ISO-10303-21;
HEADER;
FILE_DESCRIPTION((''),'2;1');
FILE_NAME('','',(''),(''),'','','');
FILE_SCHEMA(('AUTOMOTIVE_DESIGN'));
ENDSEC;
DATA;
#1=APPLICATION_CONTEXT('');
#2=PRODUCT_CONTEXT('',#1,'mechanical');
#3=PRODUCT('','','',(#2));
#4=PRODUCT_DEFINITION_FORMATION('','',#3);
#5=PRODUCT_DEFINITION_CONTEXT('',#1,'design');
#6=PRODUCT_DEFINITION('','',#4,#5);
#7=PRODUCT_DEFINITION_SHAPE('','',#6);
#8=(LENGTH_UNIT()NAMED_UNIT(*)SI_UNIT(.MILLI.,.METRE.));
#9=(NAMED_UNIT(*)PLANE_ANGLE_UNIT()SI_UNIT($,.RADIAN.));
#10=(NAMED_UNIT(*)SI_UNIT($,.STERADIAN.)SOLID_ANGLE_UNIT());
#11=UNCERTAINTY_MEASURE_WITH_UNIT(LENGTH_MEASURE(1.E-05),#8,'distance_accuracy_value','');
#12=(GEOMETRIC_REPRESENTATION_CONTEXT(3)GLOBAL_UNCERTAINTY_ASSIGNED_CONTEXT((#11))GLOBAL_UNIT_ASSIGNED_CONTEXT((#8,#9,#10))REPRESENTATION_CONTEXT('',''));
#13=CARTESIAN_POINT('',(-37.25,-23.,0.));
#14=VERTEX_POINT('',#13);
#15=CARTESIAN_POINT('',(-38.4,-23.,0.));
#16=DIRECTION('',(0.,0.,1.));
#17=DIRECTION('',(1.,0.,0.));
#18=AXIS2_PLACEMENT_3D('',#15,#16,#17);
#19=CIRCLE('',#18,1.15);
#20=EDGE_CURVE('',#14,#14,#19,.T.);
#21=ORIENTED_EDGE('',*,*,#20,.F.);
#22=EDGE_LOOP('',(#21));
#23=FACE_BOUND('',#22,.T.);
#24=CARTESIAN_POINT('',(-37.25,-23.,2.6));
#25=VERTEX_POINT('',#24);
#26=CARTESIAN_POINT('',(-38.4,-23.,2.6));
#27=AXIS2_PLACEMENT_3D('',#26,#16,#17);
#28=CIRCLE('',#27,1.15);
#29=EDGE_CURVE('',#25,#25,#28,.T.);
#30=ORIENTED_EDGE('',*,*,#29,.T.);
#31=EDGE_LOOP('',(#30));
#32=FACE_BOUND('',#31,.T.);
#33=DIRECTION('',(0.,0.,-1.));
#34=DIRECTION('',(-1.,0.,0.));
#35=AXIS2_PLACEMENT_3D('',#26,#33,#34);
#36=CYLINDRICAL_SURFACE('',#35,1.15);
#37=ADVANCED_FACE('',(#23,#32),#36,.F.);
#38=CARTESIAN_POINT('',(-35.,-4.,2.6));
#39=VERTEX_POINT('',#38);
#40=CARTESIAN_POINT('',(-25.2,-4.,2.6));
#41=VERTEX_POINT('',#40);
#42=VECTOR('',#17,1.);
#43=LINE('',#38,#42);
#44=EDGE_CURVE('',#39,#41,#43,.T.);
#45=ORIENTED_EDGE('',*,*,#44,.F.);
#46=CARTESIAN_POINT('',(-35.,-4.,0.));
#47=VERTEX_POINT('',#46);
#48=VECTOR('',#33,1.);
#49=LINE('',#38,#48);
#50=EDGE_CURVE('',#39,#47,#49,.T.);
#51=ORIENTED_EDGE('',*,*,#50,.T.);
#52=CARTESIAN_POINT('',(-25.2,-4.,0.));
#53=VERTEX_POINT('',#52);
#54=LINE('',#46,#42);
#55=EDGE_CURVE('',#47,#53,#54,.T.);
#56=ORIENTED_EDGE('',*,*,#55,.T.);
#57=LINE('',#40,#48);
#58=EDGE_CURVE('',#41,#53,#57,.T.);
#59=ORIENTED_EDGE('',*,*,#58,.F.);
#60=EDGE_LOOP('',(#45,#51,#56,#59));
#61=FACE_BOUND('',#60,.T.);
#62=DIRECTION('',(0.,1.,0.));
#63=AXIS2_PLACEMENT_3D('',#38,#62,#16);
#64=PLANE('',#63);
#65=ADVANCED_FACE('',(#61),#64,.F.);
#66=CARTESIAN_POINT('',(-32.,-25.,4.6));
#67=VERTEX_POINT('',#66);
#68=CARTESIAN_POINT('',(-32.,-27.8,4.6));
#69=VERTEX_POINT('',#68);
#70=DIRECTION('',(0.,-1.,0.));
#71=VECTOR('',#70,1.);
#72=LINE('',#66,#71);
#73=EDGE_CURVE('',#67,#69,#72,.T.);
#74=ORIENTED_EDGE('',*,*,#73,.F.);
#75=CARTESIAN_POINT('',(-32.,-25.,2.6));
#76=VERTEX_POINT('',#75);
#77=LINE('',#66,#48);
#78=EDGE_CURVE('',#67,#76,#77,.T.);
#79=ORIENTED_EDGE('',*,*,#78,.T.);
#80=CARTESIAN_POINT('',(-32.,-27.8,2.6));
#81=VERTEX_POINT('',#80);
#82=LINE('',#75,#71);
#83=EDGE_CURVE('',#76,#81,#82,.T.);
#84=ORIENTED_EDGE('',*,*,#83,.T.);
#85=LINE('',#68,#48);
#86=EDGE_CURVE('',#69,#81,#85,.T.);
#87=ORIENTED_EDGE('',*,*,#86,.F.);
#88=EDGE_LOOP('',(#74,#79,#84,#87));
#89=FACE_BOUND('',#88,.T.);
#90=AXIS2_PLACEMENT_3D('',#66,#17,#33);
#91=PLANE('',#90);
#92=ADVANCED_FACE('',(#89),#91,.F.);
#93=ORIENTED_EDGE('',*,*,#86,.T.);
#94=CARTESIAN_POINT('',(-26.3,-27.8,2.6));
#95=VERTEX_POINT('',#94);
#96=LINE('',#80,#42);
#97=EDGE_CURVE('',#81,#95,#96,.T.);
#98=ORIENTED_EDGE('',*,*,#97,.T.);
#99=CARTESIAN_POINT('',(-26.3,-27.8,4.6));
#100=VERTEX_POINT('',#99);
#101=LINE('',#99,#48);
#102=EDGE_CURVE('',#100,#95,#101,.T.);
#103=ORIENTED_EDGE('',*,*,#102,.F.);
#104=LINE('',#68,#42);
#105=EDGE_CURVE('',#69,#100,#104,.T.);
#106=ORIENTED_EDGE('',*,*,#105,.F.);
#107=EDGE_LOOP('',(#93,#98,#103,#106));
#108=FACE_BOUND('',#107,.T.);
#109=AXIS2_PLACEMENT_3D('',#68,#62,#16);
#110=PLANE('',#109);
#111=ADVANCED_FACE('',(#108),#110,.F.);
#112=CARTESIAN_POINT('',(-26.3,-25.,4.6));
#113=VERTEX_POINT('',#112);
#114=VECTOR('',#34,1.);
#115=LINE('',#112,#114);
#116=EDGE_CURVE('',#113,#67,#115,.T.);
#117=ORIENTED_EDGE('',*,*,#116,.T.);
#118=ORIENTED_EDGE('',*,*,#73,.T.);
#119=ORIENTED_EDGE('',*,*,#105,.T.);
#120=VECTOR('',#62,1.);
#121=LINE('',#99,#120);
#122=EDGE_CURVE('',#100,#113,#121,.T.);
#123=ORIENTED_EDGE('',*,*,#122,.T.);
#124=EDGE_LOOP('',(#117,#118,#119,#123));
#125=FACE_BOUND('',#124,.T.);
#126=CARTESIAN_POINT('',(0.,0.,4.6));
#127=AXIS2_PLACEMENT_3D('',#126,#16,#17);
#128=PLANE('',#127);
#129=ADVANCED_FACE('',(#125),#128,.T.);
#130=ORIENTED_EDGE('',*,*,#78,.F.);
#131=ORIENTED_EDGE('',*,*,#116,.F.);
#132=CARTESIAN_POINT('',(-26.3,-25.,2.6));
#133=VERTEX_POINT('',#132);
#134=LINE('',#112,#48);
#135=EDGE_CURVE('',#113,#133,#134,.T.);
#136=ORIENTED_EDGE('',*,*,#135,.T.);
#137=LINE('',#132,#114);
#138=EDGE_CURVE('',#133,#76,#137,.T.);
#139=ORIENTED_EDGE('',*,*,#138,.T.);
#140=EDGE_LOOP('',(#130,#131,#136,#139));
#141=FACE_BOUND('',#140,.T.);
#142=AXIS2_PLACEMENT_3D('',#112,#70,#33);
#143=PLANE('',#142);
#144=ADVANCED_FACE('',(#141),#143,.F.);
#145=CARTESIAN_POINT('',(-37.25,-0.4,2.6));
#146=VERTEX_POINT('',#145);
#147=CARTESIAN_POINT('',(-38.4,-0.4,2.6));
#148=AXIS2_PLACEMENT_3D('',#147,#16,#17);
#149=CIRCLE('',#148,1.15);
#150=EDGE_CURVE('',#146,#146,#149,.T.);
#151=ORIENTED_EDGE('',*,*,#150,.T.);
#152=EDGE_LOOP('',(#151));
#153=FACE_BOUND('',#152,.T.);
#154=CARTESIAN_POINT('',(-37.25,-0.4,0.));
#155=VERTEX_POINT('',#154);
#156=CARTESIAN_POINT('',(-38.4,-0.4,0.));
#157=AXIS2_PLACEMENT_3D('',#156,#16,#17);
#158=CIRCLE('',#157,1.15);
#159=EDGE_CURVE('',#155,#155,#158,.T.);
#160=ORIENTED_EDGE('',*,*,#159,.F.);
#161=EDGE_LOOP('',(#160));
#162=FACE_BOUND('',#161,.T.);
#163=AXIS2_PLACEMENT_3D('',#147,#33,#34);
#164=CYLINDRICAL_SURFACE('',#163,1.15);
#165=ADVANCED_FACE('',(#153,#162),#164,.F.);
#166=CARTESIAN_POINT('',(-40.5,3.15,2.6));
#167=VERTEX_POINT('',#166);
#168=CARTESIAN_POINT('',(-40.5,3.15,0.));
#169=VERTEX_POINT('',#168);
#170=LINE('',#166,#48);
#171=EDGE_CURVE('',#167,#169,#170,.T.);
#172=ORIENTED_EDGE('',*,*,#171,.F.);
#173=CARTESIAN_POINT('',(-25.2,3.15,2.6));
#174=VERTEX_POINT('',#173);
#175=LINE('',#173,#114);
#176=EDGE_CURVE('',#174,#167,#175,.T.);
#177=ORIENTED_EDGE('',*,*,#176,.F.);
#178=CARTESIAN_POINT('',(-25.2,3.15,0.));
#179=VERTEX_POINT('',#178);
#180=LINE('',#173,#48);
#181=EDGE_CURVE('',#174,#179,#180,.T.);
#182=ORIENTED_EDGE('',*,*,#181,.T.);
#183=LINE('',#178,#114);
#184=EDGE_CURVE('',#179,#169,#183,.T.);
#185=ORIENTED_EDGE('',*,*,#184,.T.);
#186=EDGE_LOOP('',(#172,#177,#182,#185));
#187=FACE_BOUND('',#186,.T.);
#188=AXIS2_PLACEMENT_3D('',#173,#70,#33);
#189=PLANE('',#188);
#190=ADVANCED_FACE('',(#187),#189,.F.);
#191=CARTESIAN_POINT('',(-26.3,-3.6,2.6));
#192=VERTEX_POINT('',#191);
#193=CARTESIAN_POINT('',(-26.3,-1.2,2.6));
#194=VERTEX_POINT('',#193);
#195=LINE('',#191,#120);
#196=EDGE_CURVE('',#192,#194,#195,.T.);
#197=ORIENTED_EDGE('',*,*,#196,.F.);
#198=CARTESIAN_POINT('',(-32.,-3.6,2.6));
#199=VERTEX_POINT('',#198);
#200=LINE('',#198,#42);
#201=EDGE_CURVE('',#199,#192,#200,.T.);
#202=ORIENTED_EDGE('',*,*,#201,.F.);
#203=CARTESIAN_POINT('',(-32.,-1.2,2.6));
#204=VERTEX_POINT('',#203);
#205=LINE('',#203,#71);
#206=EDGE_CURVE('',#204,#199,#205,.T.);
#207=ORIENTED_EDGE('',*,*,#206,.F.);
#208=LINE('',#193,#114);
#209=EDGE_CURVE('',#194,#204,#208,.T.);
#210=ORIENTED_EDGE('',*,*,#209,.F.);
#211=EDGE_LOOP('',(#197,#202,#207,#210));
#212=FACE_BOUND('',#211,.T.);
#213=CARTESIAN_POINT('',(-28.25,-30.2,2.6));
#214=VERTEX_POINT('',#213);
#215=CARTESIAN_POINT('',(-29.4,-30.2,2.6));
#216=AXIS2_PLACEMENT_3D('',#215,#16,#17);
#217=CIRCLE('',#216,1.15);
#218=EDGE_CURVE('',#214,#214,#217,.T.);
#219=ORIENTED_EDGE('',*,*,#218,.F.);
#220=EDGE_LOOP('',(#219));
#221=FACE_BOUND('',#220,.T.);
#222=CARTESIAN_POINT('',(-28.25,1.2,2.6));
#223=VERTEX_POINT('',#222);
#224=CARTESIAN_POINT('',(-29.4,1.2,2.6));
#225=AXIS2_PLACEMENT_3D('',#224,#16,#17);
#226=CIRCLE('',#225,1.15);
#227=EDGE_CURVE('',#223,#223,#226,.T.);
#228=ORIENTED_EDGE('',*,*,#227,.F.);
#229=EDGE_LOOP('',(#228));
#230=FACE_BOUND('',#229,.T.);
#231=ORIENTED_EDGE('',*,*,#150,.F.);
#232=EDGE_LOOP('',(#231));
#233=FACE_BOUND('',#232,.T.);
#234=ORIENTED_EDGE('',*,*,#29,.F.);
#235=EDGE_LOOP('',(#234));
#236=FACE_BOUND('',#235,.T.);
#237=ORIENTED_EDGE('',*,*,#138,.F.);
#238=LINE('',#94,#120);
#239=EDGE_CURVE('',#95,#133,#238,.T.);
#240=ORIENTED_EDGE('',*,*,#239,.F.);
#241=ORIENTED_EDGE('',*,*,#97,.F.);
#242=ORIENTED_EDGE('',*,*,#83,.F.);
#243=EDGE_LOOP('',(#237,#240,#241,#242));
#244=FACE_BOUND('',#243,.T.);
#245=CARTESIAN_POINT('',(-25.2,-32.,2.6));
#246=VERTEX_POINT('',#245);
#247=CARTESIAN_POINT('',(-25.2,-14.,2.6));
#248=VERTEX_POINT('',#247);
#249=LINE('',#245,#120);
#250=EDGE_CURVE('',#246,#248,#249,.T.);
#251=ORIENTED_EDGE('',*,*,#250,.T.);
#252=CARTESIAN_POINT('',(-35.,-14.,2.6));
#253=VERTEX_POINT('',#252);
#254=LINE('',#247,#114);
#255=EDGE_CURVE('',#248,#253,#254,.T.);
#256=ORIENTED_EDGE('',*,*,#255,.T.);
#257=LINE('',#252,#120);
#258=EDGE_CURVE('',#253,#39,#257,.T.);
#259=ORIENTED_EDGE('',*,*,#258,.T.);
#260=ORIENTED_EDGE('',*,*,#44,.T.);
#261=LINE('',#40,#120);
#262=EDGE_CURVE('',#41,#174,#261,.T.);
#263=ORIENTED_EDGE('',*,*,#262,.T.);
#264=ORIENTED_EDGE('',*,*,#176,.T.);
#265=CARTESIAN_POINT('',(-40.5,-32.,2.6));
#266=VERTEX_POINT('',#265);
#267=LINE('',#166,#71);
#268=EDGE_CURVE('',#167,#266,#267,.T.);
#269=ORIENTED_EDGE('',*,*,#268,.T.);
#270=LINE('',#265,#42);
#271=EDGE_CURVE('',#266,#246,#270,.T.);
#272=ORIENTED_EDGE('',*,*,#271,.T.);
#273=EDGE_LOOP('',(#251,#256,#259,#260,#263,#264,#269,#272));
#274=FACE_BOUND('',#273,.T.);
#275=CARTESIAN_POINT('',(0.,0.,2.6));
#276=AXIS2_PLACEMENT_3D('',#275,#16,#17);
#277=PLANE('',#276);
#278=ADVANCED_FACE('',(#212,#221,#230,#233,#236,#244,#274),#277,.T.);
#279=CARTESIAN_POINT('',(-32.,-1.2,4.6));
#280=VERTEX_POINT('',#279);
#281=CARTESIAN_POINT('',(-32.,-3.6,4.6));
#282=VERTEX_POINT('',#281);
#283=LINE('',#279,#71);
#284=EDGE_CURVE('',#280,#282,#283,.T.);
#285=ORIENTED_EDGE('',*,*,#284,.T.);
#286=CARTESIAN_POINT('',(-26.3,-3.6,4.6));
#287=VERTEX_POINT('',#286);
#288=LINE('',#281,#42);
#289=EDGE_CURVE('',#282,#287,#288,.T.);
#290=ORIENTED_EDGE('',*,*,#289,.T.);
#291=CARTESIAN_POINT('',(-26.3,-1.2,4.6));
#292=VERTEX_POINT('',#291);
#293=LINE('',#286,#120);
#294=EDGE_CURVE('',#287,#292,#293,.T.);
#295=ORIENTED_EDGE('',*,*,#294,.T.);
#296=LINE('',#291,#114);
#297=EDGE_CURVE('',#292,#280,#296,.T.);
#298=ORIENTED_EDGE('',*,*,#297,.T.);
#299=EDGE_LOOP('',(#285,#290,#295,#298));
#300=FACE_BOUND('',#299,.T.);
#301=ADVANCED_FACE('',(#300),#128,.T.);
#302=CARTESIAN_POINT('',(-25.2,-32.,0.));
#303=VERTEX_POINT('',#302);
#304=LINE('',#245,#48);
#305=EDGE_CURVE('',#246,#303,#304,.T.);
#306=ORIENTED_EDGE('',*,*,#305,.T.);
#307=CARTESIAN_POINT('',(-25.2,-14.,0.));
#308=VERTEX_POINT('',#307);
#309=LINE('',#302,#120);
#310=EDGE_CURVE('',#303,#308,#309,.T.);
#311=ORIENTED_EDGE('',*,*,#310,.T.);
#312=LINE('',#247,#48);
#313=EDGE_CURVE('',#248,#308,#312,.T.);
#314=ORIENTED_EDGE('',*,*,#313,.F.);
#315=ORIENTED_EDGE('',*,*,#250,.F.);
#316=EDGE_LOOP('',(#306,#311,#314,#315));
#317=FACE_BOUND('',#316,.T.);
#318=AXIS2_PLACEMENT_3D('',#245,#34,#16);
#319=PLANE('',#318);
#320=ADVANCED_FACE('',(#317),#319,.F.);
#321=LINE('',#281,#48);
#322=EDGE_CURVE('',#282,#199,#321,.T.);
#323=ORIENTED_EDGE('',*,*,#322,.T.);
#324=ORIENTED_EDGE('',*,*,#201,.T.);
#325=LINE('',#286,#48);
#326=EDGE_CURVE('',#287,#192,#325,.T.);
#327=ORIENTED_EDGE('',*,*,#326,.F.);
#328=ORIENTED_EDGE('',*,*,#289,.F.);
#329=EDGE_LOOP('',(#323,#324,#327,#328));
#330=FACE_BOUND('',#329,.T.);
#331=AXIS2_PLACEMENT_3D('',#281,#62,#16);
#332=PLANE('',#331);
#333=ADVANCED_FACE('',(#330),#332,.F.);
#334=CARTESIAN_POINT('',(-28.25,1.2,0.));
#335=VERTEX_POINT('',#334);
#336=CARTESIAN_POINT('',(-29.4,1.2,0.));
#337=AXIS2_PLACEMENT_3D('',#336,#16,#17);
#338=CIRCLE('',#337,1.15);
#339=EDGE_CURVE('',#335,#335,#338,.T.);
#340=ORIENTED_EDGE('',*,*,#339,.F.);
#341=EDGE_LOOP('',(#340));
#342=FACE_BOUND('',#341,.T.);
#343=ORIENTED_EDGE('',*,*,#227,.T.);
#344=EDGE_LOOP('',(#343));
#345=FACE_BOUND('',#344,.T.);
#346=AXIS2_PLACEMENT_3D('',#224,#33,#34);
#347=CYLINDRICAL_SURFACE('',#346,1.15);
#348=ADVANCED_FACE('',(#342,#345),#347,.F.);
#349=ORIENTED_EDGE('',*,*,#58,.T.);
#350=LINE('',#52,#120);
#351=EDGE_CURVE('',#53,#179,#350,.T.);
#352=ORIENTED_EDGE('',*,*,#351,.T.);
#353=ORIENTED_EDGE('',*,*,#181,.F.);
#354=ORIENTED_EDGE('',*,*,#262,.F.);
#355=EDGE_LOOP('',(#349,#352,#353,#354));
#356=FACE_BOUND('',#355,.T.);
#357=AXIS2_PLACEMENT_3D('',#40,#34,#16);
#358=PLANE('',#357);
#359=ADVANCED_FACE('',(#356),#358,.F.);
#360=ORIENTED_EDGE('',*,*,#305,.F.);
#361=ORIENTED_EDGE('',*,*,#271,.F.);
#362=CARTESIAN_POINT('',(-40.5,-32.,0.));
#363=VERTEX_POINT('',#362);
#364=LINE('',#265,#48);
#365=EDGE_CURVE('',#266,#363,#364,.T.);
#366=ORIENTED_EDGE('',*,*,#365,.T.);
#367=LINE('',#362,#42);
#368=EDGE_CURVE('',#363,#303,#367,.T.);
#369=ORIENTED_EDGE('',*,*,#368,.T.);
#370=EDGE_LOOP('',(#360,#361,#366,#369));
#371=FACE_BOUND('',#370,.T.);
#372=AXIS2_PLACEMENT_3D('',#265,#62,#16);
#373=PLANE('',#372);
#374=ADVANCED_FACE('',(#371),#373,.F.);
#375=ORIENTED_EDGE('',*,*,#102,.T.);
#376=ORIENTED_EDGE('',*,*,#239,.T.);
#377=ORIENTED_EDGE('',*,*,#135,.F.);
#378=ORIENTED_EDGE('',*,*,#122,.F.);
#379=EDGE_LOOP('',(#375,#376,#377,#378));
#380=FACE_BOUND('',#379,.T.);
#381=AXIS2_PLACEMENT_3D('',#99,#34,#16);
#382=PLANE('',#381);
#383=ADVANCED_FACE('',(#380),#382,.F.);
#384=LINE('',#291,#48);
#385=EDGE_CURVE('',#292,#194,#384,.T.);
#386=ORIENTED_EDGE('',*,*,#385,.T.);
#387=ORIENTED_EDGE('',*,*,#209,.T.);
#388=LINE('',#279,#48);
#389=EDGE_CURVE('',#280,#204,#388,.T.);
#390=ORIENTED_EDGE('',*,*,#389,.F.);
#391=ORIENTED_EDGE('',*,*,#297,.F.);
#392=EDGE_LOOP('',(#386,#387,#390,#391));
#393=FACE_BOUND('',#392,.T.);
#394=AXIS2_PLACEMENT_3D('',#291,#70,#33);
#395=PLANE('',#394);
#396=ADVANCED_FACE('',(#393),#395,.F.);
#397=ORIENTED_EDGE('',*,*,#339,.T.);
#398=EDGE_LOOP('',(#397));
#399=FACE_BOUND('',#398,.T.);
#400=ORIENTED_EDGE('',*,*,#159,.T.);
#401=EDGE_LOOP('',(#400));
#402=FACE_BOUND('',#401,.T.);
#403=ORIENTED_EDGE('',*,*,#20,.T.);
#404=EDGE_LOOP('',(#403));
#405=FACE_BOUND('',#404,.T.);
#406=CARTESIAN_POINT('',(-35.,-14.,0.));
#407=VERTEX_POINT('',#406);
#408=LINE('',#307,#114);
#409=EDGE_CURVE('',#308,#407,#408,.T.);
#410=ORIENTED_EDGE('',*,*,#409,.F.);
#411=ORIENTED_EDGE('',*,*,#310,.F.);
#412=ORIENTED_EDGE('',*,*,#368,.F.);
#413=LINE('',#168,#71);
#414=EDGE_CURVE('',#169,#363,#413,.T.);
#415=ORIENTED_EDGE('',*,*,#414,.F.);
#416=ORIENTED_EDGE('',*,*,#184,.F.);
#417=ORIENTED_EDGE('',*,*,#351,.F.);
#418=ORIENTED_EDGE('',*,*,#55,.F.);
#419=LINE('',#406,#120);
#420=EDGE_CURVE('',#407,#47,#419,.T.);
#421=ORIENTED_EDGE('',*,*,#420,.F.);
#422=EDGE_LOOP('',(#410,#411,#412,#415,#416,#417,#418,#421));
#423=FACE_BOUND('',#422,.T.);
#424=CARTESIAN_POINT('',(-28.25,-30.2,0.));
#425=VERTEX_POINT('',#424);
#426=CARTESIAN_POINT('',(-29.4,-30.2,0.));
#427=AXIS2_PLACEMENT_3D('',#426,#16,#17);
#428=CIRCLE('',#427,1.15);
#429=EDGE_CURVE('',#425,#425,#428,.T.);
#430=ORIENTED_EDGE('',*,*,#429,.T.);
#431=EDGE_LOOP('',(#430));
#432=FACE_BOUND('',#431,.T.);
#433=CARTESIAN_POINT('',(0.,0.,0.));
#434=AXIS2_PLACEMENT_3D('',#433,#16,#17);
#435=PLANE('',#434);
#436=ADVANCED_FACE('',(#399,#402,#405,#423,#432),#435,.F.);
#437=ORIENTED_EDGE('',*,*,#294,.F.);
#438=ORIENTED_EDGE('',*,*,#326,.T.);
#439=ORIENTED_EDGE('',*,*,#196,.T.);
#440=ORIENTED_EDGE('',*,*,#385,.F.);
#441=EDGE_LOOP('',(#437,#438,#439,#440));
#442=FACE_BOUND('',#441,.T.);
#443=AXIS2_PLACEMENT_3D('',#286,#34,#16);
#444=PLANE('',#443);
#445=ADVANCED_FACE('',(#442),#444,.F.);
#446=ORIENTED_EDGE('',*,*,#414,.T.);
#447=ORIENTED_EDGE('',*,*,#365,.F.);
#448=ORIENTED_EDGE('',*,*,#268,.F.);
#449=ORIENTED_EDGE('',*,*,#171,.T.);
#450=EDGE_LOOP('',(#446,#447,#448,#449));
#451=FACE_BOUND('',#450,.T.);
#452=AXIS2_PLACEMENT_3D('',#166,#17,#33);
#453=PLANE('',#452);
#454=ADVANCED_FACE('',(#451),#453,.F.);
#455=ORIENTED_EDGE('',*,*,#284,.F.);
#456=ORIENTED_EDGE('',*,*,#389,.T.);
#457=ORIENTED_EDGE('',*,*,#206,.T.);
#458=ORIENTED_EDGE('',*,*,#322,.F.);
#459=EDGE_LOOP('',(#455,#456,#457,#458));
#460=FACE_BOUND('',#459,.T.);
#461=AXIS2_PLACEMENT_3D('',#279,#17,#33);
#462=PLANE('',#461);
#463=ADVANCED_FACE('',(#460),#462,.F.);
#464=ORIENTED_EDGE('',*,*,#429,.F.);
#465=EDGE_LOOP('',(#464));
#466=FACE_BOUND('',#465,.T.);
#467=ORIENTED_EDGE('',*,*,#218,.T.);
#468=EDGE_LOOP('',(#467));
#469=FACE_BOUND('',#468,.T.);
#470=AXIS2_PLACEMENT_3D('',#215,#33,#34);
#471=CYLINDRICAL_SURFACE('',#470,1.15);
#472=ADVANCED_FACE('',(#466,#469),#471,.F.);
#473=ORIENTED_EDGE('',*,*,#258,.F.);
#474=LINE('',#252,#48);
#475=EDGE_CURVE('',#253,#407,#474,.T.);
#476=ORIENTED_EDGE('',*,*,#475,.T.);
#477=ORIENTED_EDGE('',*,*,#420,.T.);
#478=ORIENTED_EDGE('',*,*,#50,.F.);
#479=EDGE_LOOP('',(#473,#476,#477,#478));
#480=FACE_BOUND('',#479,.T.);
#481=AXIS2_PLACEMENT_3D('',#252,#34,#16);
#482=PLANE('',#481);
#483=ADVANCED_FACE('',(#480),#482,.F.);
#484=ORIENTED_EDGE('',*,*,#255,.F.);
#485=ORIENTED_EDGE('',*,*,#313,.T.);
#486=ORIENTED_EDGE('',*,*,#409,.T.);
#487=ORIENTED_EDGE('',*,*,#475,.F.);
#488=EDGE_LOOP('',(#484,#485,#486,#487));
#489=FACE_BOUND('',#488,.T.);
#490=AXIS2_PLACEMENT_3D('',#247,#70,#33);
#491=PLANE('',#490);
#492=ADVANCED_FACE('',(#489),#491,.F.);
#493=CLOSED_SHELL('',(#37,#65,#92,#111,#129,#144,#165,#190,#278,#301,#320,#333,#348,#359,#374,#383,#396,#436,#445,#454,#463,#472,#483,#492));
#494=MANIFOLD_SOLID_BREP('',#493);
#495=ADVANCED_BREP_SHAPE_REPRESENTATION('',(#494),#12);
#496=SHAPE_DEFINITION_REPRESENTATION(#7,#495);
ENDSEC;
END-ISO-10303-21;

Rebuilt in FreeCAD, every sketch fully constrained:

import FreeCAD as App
import Part
import Sketcher

V = App.Vector
Q = App.Units.Quantity


def add_polygon(sketch, points):
    """Adds a closed chain of lines whose ends are joined by coincident constraints."""
    first, n = sketch.GeometryCount, len(points)
    for a, b in zip(points, points[1:] + points[:1]):
        sketch.addGeometry(Part.LineSegment(App.Vector(*a, 0), App.Vector(*b, 0)), False)
    for i in range(n):
        sketch.addConstraint(Sketcher.Constraint("Coincident", first + i, 2, first + (i + 1) % n, 1))

doc = App.newDocument("Part")
body = doc.addObject("PartDesign::Body", "Body")

# Sketch on XY plane
sketch1 = body.newObject("Sketcher::SketchObject", "Sketch")
sketch1.AttachmentSupport = (doc.getObject("XY_Plane"), [""])
sketch1.MapMode = "FlatFace"
add_polygon(sketch1, [(-40.5, -32), (-25.2, -32), (-25.2, -14), (-35, -14), (-35, -4), (-25.2, -4), (-25.2, 3.1), (-40.5, 3.1)])  # lines 0-7
sketch1.addGeometry(Part.Circle(V(-38.4, -23, 0), V(0, 0, 1), 1.1), False)  # 8
sketch1.addGeometry(Part.Circle(V(-29.4, -30.2, 0), V(0, 0, 1), 1.1), False)  # 9
sketch1.addGeometry(Part.Circle(V(-38.4, -0.4, 0), V(0, 0, 1), 1.1), False)  # 10
sketch1.addGeometry(Part.Circle(V(-29.4, 1.2, 0), V(0, 0, 1), 1.1), False)  # 11
sketch1.addConstraint([
    Sketcher.Constraint("Horizontal", 0),
    Sketcher.Constraint("Vertical", 1),
    Sketcher.Constraint("Horizontal", 2),
    Sketcher.Constraint("Vertical", 3),
    Sketcher.Constraint("Horizontal", 4),
    Sketcher.Constraint("Vertical", 5),
    Sketcher.Constraint("Horizontal", 6),
    Sketcher.Constraint("Vertical", 7),
    Sketcher.Constraint("Equal", 8, 9),
    Sketcher.Constraint("Equal", 9, 10),
    Sketcher.Constraint("Equal", 10, 11),
    Sketcher.Constraint("Vertical", 8, 3, 10, 3),
    Sketcher.Constraint("Vertical", 9, 3, 11, 3),
    Sketcher.Constraint("Vertical", 1, 2, 4, 2),
    Sketcher.Constraint("Diameter", 8, Q("2.3 mm")),
    Sketcher.Constraint("DistanceY", 1, 1, 1, 2, Q("18 mm")),
    Sketcher.Constraint("DistanceY", 3, 1, 3, 2, Q("10 mm")),
    Sketcher.Constraint("DistanceX", 0, 1, 0, 2, Q("15.3 mm")),
    Sketcher.Constraint("DistanceX", 2, 2, 2, 1, Q("9.8 mm")),
    Sketcher.Constraint("DistanceY", 8, 3, -1, 1, Q("23 mm")),
    Sketcher.Constraint("DistanceY", 0, 2, -1, 1, Q("32 mm")),
    Sketcher.Constraint("DistanceX", 2, 2, -1, 1, Q("35 mm")),
    Sketcher.Constraint("DistanceX", 8, 3, 9, 3, Q("9 mm")),
    Sketcher.Constraint("DistanceY", 5, 1, 5, 2, Q("7.15 mm")),
    Sketcher.Constraint("DistanceX", 8, 3, -1, 1, Q("38.4 mm")),
    Sketcher.Constraint("DistanceY", 9, 3, -1, 1, Q("30.2 mm")),
    Sketcher.Constraint("DistanceY", 10, 3, -1, 1, Q("0.4 mm")),
    Sketcher.Constraint("DistanceY", -1, 1, 11, 3, Q("1.2 mm")),
])
pad1 = body.newObject("PartDesign::Pad", "Pad")
pad1.Profile = sketch1
pad1.Length = 2.6

# Sketch on XY plane
sketch2 = body.newObject("Sketcher::SketchObject", "Sketch001")
sketch2.AttachmentSupport = (doc.getObject("XY_Plane"), [""])
sketch2.MapMode = "FlatFace"
sketch2.AttachmentOffset = App.Placement(V(0, 0, 2.6), App.Rotation())
add_polygon(sketch2, [(-32, -25), (-32, -27.8), (-26.3, -27.8), (-26.3, -25)])  # lines 0-3
add_polygon(sketch2, [(-32, -1.2), (-32, -3.6), (-26.3, -3.6), (-26.3, -1.2)])  # lines 4-7
sketch2.addConstraint([
    Sketcher.Constraint("Vertical", 0),
    Sketcher.Constraint("Horizontal", 1),
    Sketcher.Constraint("Vertical", 2),
    Sketcher.Constraint("Horizontal", 3),
    Sketcher.Constraint("Vertical", 4),
    Sketcher.Constraint("Horizontal", 5),
    Sketcher.Constraint("Vertical", 6),
    Sketcher.Constraint("Horizontal", 7),
    Sketcher.Constraint("Vertical", 3, 2, 4, 2),
    Sketcher.Constraint("Vertical", 2, 2, 5, 2),
    Sketcher.Constraint("DistanceX", 1, 1, 1, 2, Q("5.7 mm")),
    Sketcher.Constraint("DistanceY", 0, 2, 0, 1, Q("2.8 mm")),
    Sketcher.Constraint("DistanceY", 4, 2, 4, 1, Q("2.4 mm")),
    Sketcher.Constraint("DistanceX", 0, 2, -1, 1, Q("32 mm")),
    Sketcher.Constraint("DistanceY", 2, 2, -1, 1, Q("25 mm")),
    Sketcher.Constraint("DistanceY", 4, 2, -1, 1, Q("3.6 mm")),
])
pad2 = body.newObject("PartDesign::Pad", "Pad001")
pad2.Profile = sketch2
pad2.Length = 2

doc.recompute()
